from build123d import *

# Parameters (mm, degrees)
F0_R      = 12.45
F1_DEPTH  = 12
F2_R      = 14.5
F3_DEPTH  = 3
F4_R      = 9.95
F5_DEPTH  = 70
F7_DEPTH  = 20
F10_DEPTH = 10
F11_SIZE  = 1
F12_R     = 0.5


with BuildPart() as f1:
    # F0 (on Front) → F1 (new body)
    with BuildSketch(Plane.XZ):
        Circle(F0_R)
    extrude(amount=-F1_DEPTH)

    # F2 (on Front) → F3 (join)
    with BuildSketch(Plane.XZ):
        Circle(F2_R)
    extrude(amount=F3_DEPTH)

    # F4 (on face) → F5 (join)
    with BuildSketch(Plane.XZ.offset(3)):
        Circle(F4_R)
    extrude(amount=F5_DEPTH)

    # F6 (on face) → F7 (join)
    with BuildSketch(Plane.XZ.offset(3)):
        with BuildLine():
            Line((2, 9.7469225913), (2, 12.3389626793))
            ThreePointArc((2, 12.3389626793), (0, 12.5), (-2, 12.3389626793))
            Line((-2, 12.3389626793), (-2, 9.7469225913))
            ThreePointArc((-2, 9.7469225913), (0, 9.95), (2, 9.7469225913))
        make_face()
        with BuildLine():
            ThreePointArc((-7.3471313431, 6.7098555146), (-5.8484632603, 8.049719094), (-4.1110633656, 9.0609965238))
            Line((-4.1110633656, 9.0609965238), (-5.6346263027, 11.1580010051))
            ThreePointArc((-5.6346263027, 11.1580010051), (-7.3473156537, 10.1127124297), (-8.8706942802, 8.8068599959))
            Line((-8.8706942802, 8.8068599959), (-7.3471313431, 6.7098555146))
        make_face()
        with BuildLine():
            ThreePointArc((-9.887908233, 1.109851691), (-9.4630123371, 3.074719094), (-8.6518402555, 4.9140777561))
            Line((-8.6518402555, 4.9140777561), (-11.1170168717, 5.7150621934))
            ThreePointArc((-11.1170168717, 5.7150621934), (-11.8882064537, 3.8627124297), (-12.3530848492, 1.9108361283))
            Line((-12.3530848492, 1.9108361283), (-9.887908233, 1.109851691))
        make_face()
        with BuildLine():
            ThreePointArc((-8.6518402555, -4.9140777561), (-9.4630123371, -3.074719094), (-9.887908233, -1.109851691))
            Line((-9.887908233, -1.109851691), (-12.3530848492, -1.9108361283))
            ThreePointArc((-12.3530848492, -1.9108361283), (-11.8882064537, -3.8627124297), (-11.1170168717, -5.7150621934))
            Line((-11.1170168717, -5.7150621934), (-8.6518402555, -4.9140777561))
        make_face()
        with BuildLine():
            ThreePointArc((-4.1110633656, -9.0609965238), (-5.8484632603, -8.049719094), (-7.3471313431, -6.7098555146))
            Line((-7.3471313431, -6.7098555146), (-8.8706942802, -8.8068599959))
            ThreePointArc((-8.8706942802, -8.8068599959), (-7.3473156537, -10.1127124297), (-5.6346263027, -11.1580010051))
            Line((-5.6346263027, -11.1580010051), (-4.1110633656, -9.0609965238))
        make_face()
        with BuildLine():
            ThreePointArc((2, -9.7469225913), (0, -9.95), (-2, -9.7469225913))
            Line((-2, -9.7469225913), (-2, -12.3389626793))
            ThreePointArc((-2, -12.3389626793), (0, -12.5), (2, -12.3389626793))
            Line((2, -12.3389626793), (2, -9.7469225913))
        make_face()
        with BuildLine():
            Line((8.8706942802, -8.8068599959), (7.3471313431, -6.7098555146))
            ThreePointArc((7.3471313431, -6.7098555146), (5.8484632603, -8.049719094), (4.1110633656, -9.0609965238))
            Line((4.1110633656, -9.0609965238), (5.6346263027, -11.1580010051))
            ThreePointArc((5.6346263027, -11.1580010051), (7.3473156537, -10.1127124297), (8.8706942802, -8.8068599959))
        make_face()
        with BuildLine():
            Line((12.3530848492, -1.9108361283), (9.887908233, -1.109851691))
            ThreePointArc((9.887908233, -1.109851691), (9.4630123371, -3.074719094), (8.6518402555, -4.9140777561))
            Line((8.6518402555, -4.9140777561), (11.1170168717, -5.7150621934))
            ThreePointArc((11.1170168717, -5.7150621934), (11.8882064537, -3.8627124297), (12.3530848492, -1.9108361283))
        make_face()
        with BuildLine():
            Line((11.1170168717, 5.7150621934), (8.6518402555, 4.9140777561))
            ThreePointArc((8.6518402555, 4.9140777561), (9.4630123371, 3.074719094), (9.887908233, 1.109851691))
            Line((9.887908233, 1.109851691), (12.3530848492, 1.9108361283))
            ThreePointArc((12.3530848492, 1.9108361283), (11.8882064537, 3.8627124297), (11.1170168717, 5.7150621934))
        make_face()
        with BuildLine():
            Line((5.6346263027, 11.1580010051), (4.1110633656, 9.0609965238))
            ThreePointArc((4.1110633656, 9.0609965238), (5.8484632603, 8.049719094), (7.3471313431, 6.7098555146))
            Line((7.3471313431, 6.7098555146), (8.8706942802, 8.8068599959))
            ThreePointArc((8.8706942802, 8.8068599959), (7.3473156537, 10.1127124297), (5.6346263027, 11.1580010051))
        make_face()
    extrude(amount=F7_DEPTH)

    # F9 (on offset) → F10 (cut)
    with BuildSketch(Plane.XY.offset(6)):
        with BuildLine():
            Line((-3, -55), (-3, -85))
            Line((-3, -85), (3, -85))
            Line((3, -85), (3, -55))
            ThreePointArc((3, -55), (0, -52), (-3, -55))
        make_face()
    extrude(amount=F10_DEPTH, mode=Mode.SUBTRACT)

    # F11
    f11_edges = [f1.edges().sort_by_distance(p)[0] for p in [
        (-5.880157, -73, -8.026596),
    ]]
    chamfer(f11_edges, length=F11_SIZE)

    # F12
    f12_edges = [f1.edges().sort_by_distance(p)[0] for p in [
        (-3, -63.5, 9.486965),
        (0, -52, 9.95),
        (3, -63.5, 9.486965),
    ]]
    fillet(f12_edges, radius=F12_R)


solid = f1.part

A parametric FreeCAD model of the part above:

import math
import FreeCAD as App
import Part
import Sketcher

V = App.Vector
Q = App.Units.Quantity


def edges_at(feature, points):
    """Names of the edges that pass closest to the given points."""
    edges = feature.Shape.Edges
    near = lambda p: min(range(len(edges)), key=lambda i: edges[i].distToShape(Part.Vertex(*p))[0])
    return sorted({f"Edge{near(p) + 1}" for p in points})

doc = App.newDocument("Part")
body = doc.addObject("PartDesign::Body", "Body")

# Sketch on XZ plane
sketch1 = doc.addObject("Sketcher::SketchObject", "Sketch")
body.addObject(sketch1)
sketch1.AttachmentSupport = (doc.XZ_Plane, [""])
sketch1.MapMode = "FlatFace"
sketch1.addGeometry(Part.Circle(V(0, 0, 0), V(0, 0, 1), 12), False)
sketch1.addConstraint(Sketcher.Constraint("Coincident", 0, 3, -1, 1))
sketch1.addConstraint(Sketcher.Constraint("Diameter", 0, Q("24.9 mm")))
pad1 = doc.addObject("PartDesign::Pad", "Pad")
body.addObject(pad1)
pad1.Profile = sketch1
pad1.Length = 12
pad1.Reversed = True

# Sketch on XZ plane
sketch2 = doc.addObject("Sketcher::SketchObject", "Sketch001")
body.addObject(sketch2)
sketch2.AttachmentSupport = (doc.XZ_Plane, [""])
sketch2.MapMode = "FlatFace"
sketch2.addGeometry(Part.Circle(V(0, 0, 0), V(0, 0, 1), 14), False)
sketch2.addConstraint(Sketcher.Constraint("Coincident", 0, 3, -1, 1))
sketch2.addConstraint(Sketcher.Constraint("Diameter", 0, Q("29 mm")))
pad2 = doc.addObject("PartDesign::Pad", "Pad001")
body.addObject(pad2)
pad2.Profile = sketch2
pad2.Length = 3

# Sketch on XZ plane
sketch3 = doc.addObject("Sketcher::SketchObject", "Sketch002")
body.addObject(sketch3)
sketch3.AttachmentSupport = (doc.XZ_Plane, [""])
sketch3.MapMode = "FlatFace"
sketch3.AttachmentOffset = App.Placement(V(0, 0, 3), App.Rotation())
sketch3.addGeometry(Part.Circle(V(0, 0, 0), V(0, 0, 1), 10), False)
sketch3.addConstraint(Sketcher.Constraint("Coincident", 0, 3, -1, 1))
sketch3.addConstraint(Sketcher.Constraint("Diameter", 0, Q("19.9 mm")))
pad3 = doc.addObject("PartDesign::Pad", "Pad002")
body.addObject(pad3)
pad3.Profile = sketch3
pad3.Length = 70

# Sketch on XZ plane
sketch4 = doc.addObject("Sketcher::SketchObject", "Sketch003")
body.addObject(sketch4)
sketch4.AttachmentSupport = (doc.XZ_Plane, [""])
sketch4.MapMode = "FlatFace"
sketch4.AttachmentOffset = App.Placement(V(0, 0, 3), App.Rotation())
sketch4.addGeometry(Part.LineSegment(V(2, 9.7, 0), V(2, 12.3, 0)), False)
sketch4.addGeometry(Part.ArcOfCircle(Part.Circle(V(0, 0, 0), V(0, 0, 1), 12.5), math.radians(80.79), math.radians(99.21)), False)
sketch4.addGeometry(Part.LineSegment(V(-2, 12.3, 0), V(-2, 9.7, 0)), False)
sketch4.addGeometry(Part.ArcOfCircle(Part.Circle(V(0, 0, 0), V(0, 0, 1), 10), math.radians(78), math.radians(102)), False)
sketch4.addGeometry(Part.ArcOfCircle(Part.Circle(V(0, 0, 0), V(0, 0, 1), 10), math.radians(114), math.radians(138)), False)
sketch4.addGeometry(Part.LineSegment(V(-4.1, 9.1, 0), V(-5.6, 11.2, 0)), False)
sketch4.addGeometry(Part.ArcOfCircle(Part.Circle(V(0, 0, 0), V(0, 0, 1), 12.5), math.radians(116.79), math.radians(135.21)), False)
sketch4.addGeometry(Part.LineSegment(V(-8.9, 8.8, 0), V(-7.3, 6.7, 0)), False)
sketch4.addGeometry(Part.ArcOfCircle(Part.Circle(V(0, 0, 0), V(0, 0, 1), 10), math.radians(150), math.radians(174)), False)
sketch4.addGeometry(Part.LineSegment(V(-8.7, 4.9, 0), V(-11.1, 5.7, 0)), False)
sketch4.addGeometry(Part.ArcOfCircle(Part.Circle(V(0, 0, 0), V(0, 0, 1), 12.5), math.radians(152.79), math.radians(171.21)), False)
sketch4.addGeometry(Part.LineSegment(V(-12.4, 1.9, 0), V(-9.9, 1.1, 0)), False)
sketch4.addGeometry(Part.ArcOfCircle(Part.Circle(V(0, 0, 0), V(0, 0, 1), 10), math.radians(-174), math.radians(-150)), False)
sketch4.addGeometry(Part.LineSegment(V(-9.9, -1.1, 0), V(-12.4, -1.9, 0)), False)
sketch4.addGeometry(Part.ArcOfCircle(Part.Circle(V(0, 0, 0), V(0, 0, 1), 12.5), math.radians(-171.21), math.radians(-152.79)), False)
sketch4.addGeometry(Part.LineSegment(V(-11.1, -5.7, 0), V(-8.7, -4.9, 0)), False)
sketch4.addGeometry(Part.ArcOfCircle(Part.Circle(V(0, 0, 0), V(0, 0, 1), 10), math.radians(-138), math.radians(-114)), False)
sketch4.addGeometry(Part.LineSegment(V(-7.3, -6.7, 0), V(-8.9, -8.8, 0)), False)
sketch4.addGeometry(Part.ArcOfCircle(Part.Circle(V(0, 0, 0), V(0, 0, 1), 12.5), math.radians(-135.21), math.radians(-116.79)), False)
sketch4.addGeometry(Part.LineSegment(V(-5.6, -11.2, 0), V(-4.1, -9.1, 0)), False)
sketch4.addGeometry(Part.ArcOfCircle(Part.Circle(V(0, 0, 0), V(0, 0, 1), 10), math.radians(-102), math.radians(-78)), False)
sketch4.addGeometry(Part.LineSegment(V(-2, -9.7, 0), V(-2, -12.3, 0)), False)
sketch4.addGeometry(Part.ArcOfCircle(Part.Circle(V(0, 0, 0), V(0, 0, 1), 12.5), math.radians(-99.21), math.radians(-80.79)), False)
sketch4.addGeometry(Part.LineSegment(V(2, -12.3, 0), V(2, -9.7, 0)), False)
sketch4.addGeometry(Part.LineSegment(V(8.9, -8.8, 0), V(7.3, -6.7, 0)), False)
sketch4.addGeometry(Part.ArcOfCircle(Part.Circle(V(0, 0, 0), V(0, 0, 1), 10), math.radians(-66), math.radians(-42)), False)
sketch4.addGeometry(Part.LineSegment(V(4.1, -9.1, 0), V(5.6, -11.2, 0)), False)
sketch4.addGeometry(Part.ArcOfCircle(Part.Circle(V(0, 0, 0), V(0, 0, 1), 12.5), math.radians(-63.21), math.radians(-44.79)), False)
sketch4.addGeometry(Part.LineSegment(V(12.4, -1.9, 0), V(9.9, -1.1, 0)), False)
sketch4.addGeometry(Part.ArcOfCircle(Part.Circle(V(0, 0, 0), V(0, 0, 1), 10), math.radians(-30), math.radians(-6)), False)
sketch4.addGeometry(Part.LineSegment(V(8.7, -4.9, 0), V(11.1, -5.7, 0)), False)
sketch4.addGeometry(Part.ArcOfCircle(Part.Circle(V(0, 0, 0), V(0, 0, 1), 12.5), math.radians(-27.21), math.radians(-8.79)), False)
sketch4.addGeometry(Part.LineSegment(V(11.1, 5.7, 0), V(8.7, 4.9, 0)), False)
sketch4.addGeometry(Part.ArcOfCircle(Part.Circle(V(0, 0, 0), V(0, 0, 1), 10), math.radians(6), math.radians(30)), False)
sketch4.addGeometry(Part.LineSegment(V(9.9, 1.1, 0), V(12.4, 1.9, 0)), False)
sketch4.addGeometry(Part.ArcOfCircle(Part.Circle(V(0, 0, 0), V(0, 0, 1), 12.5), math.radians(8.79), math.radians(27.21)), False)
sketch4.addGeometry(Part.LineSegment(V(5.6, 11.2, 0), V(4.1, 9.1, 0)), False)
sketch4.addGeometry(Part.ArcOfCircle(Part.Circle(V(0, 0, 0), V(0, 0, 1), 10), math.radians(42), math.radians(66)), False)
sketch4.addGeometry(Part.LineSegment(V(7.3, 6.7, 0), V(8.9, 8.8, 0)), False)
sketch4.addGeometry(Part.ArcOfCircle(Part.Circle(V(0, 0, 0), V(0, 0, 1), 12.5), math.radians(44.79), math.radians(63.21)), False)
sketch4.addConstraint(Sketcher.Constraint("Coincident", 0, 2, 1, 1))
sketch4.addConstraint(Sketcher.Constraint("Coincident", 1, 2, 2, 1))
sketch4.addConstraint(Sketcher.Constraint("Coincident", 2, 2, 3, 2))
sketch4.addConstraint(Sketcher.Constraint("Coincident", 3, 1, 0, 1))
sketch4.addConstraint(Sketcher.Constraint("Coincident", 4, 1, 5, 1))
sketch4.addConstraint(Sketcher.Constraint("Coincident", 5, 2, 6, 1))
sketch4.addConstraint(Sketcher.Constraint("Coincident", 6, 2, 7, 1))
sketch4.addConstraint(Sketcher.Constraint("Coincident", 7, 2, 4, 2))
sketch4.addConstraint(Sketcher.Constraint("Coincident", 8, 1, 9, 1))
sketch4.addConstraint(Sketcher.Constraint("Coincident", 9, 2, 10, 1))
sketch4.addConstraint(Sketcher.Constraint("Coincident", 10, 2, 11, 1))
sketch4.addConstraint(Sketcher.Constraint("Coincident", 11, 2, 8, 2))
sketch4.addConstraint(Sketcher.Constraint("Coincident", 12, 1, 13, 1))
sketch4.addConstraint(Sketcher.Constraint("Coincident", 13, 2, 14, 1))
sketch4.addConstraint(Sketcher.Constraint("Coincident", 14, 2, 15, 1))
sketch4.addConstraint(Sketcher.Constraint("Coincident", 15, 2, 12, 2))
sketch4.addConstraint(Sketcher.Constraint("Coincident", 16, 1, 17, 1))
sketch4.addConstraint(Sketcher.Constraint("Coincident", 17, 2, 18, 1))
sketch4.addConstraint(Sketcher.Constraint("Coincident", 18, 2, 19, 1))
sketch4.addConstraint(Sketcher.Constraint("Coincident", 19, 2, 16, 2))
sketch4.addConstraint(Sketcher.Constraint("Coincident", 20, 1, 21, 1))
sketch4.addConstraint(Sketcher.Constraint("Coincident", 21, 2, 22, 1))
sketch4.addConstraint(Sketcher.Constraint("Coincident", 22, 2, 23, 1))
sketch4.addConstraint(Sketcher.Constraint("Coincident", 23, 2, 20, 2))
sketch4.addConstraint(Sketcher.Constraint("Coincident", 24, 2, 25, 2))
sketch4.addConstraint(Sketcher.Constraint("Coincident", 25, 1, 26, 1))
sketch4.addConstraint(Sketcher.Constraint("Coincident", 26, 2, 27, 1))
sketch4.addConstraint(Sketcher.Constraint("Coincident", 27, 2, 24, 1))
sketch4.addConstraint(Sketcher.Constraint("Coincident", 28, 2, 29, 2))
sketch4.addConstraint(Sketcher.Constraint("Coincident", 29, 1, 30, 1))
sketch4.addConstraint(Sketcher.Constraint("Coincident", 30, 2, 31, 1))
sketch4.addConstraint(Sketcher.Constraint("Coincident", 31, 2, 28, 1))
sketch4.addConstraint(Sketcher.Constraint("Coincident", 32, 2, 33, 2))
sketch4.addConstraint(Sketcher.Constraint("Coincident", 33, 1, 34, 1))
sketch4.addConstraint(Sketcher.Constraint("Coincident", 34, 2, 35, 1))
sketch4.addConstraint(Sketcher.Constraint("Coincident", 35, 2, 32, 1))
sketch4.addConstraint(Sketcher.Constraint("Coincident", 36, 2, 37, 2))
sketch4.addConstraint(Sketcher.Constraint("Coincident", 37, 1, 38, 1))
sketch4.addConstraint(Sketcher.Constraint("Coincident", 38, 2, 39, 1))
sketch4.addConstraint(Sketcher.Constraint("Coincident", 39, 2, 36, 1))
sketch4.addConstraint(Sketcher.Constraint("Vertical", 0))
sketch4.addConstraint(Sketcher.Constraint("Vertical", 2))
sketch4.addConstraint(Sketcher.Constraint("Vertical", 21))
sketch4.addConstraint(Sketcher.Constraint("Vertical", 23))
sketch4.addConstraint(Sketcher.Constraint("Coincident", 1, 3, -1, 1))
sketch4.addConstraint(Sketcher.Constraint("Coincident", 3, 3, -1, 1))
sketch4.addConstraint(Sketcher.Constraint("Coincident", 4, 3, -1, 1))
sketch4.addConstraint(Sketcher.Constraint("Coincident", 6, 3, -1, 1))
sketch4.addConstraint(Sketcher.Constraint("Coincident", 8, 3, -1, 1))
sketch4.addConstraint(Sketcher.Constraint("Coincident", 10, 3, -1, 1))
sketch4.addConstraint(Sketcher.Constraint("Coincident", 12, 3, -1, 1))
sketch4.addConstraint(Sketcher.Constraint("Coincident", 14, 3, -1, 1))
sketch4.addConstraint(Sketcher.Constraint("Coincident", 16, 3, -1, 1))
sketch4.addConstraint(Sketcher.Constraint("Coincident", 18, 3, -1, 1))
sketch4.addConstraint(Sketcher.Constraint("Coincident", 20, 3, -1, 1))
sketch4.addConstraint(Sketcher.Constraint("Coincident", 22, 3, -1, 1))
sketch4.addConstraint(Sketcher.Constraint("Coincident", 25, 3, -1, 1))
sketch4.addConstraint(Sketcher.Constraint("Coincident", 27, 3, -1, 1))
sketch4.addConstraint(Sketcher.Constraint("Coincident", 29, 3, -1, 1))
sketch4.addConstraint(Sketcher.Constraint("Coincident", 31, 3, -1, 1))
sketch4.addConstraint(Sketcher.Constraint("Coincident", 33, 3, -1, 1))
sketch4.addConstraint(Sketcher.Constraint("Coincident", 35, 3, -1, 1))
sketch4.addConstraint(Sketcher.Constraint("Coincident", 37, 3, -1, 1))
sketch4.addConstraint(Sketcher.Constraint("Coincident", 39, 3, -1, 1))
sketch4.addConstraint(Sketcher.Constraint("Equal", 3, 4))
sketch4.addConstraint(Sketcher.Constraint("Equal", 1, 6))
sketch4.addConstraint(Sketcher.Constraint("Equal", 4, 8))
sketch4.addConstraint(Sketcher.Constraint("Equal", 6, 10))
sketch4.addConstraint(Sketcher.Constraint("Equal", 8, 12))
sketch4.addConstraint(Sketcher.Constraint("Equal", 10, 14))
sketch4.addConstraint(Sketcher.Constraint("Equal", 12, 16))
sketch4.addConstraint(Sketcher.Constraint("Equal", 14, 18))
sketch4.addConstraint(Sketcher.Constraint("Equal", 16, 20))
sketch4.addConstraint(Sketcher.Constraint("Equal", 18, 22))
sketch4.addConstraint(Sketcher.Constraint("Equal", 20, 25))
sketch4.addConstraint(Sketcher.Constraint("Equal", 22, 27))
sketch4.addConstraint(Sketcher.Constraint("Equal", 25, 29))
sketch4.addConstraint(Sketcher.Constraint("Equal", 27, 31))
sketch4.addConstraint(Sketcher.Constraint("Equal", 29, 33))
sketch4.addConstraint(Sketcher.Constraint("Equal", 31, 35))
sketch4.addConstraint(Sketcher.Constraint("Equal", 33, 37))
sketch4.addConstraint(Sketcher.Constraint("Equal", 35, 39))
sketch4.addConstraint(Sketcher.Constraint("Parallel", 5, 7))
sketch4.addConstraint(Sketcher.Constraint("Parallel", 9, 11))
sketch4.addConstraint(Sketcher.Constraint("Parallel", 13, 15))
sketch4.addConstraint(Sketcher.Constraint("Parallel", 17, 19))
sketch4.addConstraint(Sketcher.Constraint("Parallel", 7, 24))
sketch4.addConstraint(Sketcher.Constraint("Parallel", 24, 26))
sketch4.addConstraint(Sketcher.Constraint("Parallel", 11, 28))
sketch4.addConstraint(Sketcher.Constraint("Parallel", 28, 30))
sketch4.addConstraint(Sketcher.Constraint("Parallel", 15, 32))
sketch4.addConstraint(Sketcher.Constraint("Parallel", 32, 34))
sketch4.addConstraint(Sketcher.Constraint("Parallel", 19, 36))
sketch4.addConstraint(Sketcher.Constraint("Parallel", 36, 38))
sketch4.addConstraint(Sketcher.Constraint("Horizontal", 0, 2, 1, 2))
sketch4.addConstraint(Sketcher.Constraint("Horizontal", 21, 2, 22, 2))
sketch4.addConstraint(Sketcher.Constraint("Horizontal", 16, 1, 24, 2))
sketch4.addConstraint(Sketcher.Constraint("Horizontal", 19, 2, 25, 1))
sketch4.addConstraint(Sketcher.Constraint("Horizontal", 18, 2, 26, 2))
sketch4.addConstraint(Sketcher.Constraint("Horizontal", 12, 1, 28, 2))
sketch4.addConstraint(Sketcher.Constraint("Horizontal", 15, 2, 29, 1))
sketch4.addConstraint(Sketcher.Constraint("Horizontal", 14, 2, 30, 2))
sketch4.addConstraint(Sketcher.Constraint("Horizontal", 8, 1, 32, 2))
sketch4.addConstraint(Sketcher.Constraint("Horizontal", 11, 2, 33, 1))
sketch4.addConstraint(Sketcher.Constraint("Horizontal", 4, 1, 36, 2))
sketch4.addConstraint(Sketcher.Constraint("Horizontal", 7, 2, 37, 1))
sketch4.addConstraint(Sketcher.Constraint("Vertical", 11, 2, 12, 1))
sketch4.addConstraint(Sketcher.Constraint("Vertical", 9, 2, 14, 2))
sketch4.addConstraint(Sketcher.Constraint("Vertical", 7, 2, 16, 1))
sketch4.addConstraint(Sketcher.Constraint("Vertical", 5, 2, 18, 2))
sketch4.addConstraint(Sketcher.Constraint("Vertical", 2, 2, 20, 1))
sketch4.addConstraint(Sketcher.Constraint("Equal", 5, 7))
sketch4.addConstraint(Sketcher.Constraint("Equal", 7, 9))
sketch4.addConstraint(Sketcher.Constraint("Equal", 9, 11))
sketch4.addConstraint(Sketcher.Constraint("Radius", 1, Q("12.5 mm")))
sketch4.addConstraint(Sketcher.Constraint("Angle", 5, Q("126 deg")))
sketch4.addConstraint(Sketcher.Constraint("Angle", 9, Q("162 deg")))
sketch4.addConstraint(Sketcher.Constraint("Radius", 3, Q("9.95 mm")))
sketch4.addConstraint(Sketcher.Constraint("DistanceX", -1, 1, 0, 2, Q("2 mm")))
sketch4.addConstraint(Sketcher.Constraint("DistanceY", -1, 1, 5, 2, Q("11.158001 mm")))
pad4 = doc.addObject("PartDesign::Pad", "Pad003")
body.addObject(pad4)
pad4.Profile = sketch4
pad4.Length = 20

# Sketch on XY plane
sketch5 = doc.addObject("Sketcher::SketchObject", "Sketch004")
body.addObject(sketch5)
sketch5.AttachmentSupport = (doc.XY_Plane, [""])
sketch5.MapMode = "FlatFace"
sketch5.AttachmentOffset = App.Placement(V(0, 0, 6), App.Rotation())
sketch5.addGeometry(Part.LineSegment(V(-3, -55, 0), V(-3, -85, 0)), False)
sketch5.addGeometry(Part.LineSegment(V(-3, -85, 0), V(3, -85, 0)), False)
sketch5.addGeometry(Part.LineSegment(V(3, -85, 0), V(3, -55, 0)), False)
sketch5.addGeometry(Part.ArcOfCircle(Part.Circle(V(0, -55, 0), V(0, 0, 1), 3), math.radians(0), math.radians(180)), False)
sketch5.addConstraint(Sketcher.Constraint("Coincident", 0, 2, 1, 1))
sketch5.addConstraint(Sketcher.Constraint("Coincident", 1, 2, 2, 1))
sketch5.addConstraint(Sketcher.Constraint("Tangent", 2, 2, 3, 1))
sketch5.addConstraint(Sketcher.Constraint("Tangent", 3, 2, 0, 1))
sketch5.addConstraint(Sketcher.Constraint("Vertical", 0))
sketch5.addConstraint(Sketcher.Constraint("Horizontal", 1))
sketch5.addConstraint(Sketcher.Constraint("Vertical", 2))
sketch5.addConstraint(Sketcher.Constraint("PointOnObject", 3, 3, -2))
sketch5.addConstraint(Sketcher.Constraint("Radius", 3, Q("3 mm")))
sketch5.addConstraint(Sketcher.Constraint("DistanceY", 0, 2, 0, 1, Q("30 mm")))
sketch5.addConstraint(Sketcher.Constraint("DistanceY", 3, 3, -1, 1, Q("55 mm")))
pocket1 = doc.addObject("PartDesign::Pocket", "Pocket")
body.addObject(pocket1)
pocket1.Profile = sketch5
pocket1.Length = 10
pocket1.Reversed = True
doc.recompute()

chamfer = doc.addObject("PartDesign::Chamfer", "Chamfer")
body.addObject(chamfer)
chamfer.Base = (pocket1, edges_at(pocket1, [(-5.88, -73, -8.027)]))
chamfer.Size = 1
doc.recompute()

fillet = doc.addObject("PartDesign::Fillet", "Fillet")
body.addObject(fillet)
fillet.Base = (chamfer, edges_at(chamfer, [(-3, -63.5, 9.487), (0, -52, 9.95), (3, -63.5, 9.487)]))
fillet.Radius = 0.5

doc.recompute()
